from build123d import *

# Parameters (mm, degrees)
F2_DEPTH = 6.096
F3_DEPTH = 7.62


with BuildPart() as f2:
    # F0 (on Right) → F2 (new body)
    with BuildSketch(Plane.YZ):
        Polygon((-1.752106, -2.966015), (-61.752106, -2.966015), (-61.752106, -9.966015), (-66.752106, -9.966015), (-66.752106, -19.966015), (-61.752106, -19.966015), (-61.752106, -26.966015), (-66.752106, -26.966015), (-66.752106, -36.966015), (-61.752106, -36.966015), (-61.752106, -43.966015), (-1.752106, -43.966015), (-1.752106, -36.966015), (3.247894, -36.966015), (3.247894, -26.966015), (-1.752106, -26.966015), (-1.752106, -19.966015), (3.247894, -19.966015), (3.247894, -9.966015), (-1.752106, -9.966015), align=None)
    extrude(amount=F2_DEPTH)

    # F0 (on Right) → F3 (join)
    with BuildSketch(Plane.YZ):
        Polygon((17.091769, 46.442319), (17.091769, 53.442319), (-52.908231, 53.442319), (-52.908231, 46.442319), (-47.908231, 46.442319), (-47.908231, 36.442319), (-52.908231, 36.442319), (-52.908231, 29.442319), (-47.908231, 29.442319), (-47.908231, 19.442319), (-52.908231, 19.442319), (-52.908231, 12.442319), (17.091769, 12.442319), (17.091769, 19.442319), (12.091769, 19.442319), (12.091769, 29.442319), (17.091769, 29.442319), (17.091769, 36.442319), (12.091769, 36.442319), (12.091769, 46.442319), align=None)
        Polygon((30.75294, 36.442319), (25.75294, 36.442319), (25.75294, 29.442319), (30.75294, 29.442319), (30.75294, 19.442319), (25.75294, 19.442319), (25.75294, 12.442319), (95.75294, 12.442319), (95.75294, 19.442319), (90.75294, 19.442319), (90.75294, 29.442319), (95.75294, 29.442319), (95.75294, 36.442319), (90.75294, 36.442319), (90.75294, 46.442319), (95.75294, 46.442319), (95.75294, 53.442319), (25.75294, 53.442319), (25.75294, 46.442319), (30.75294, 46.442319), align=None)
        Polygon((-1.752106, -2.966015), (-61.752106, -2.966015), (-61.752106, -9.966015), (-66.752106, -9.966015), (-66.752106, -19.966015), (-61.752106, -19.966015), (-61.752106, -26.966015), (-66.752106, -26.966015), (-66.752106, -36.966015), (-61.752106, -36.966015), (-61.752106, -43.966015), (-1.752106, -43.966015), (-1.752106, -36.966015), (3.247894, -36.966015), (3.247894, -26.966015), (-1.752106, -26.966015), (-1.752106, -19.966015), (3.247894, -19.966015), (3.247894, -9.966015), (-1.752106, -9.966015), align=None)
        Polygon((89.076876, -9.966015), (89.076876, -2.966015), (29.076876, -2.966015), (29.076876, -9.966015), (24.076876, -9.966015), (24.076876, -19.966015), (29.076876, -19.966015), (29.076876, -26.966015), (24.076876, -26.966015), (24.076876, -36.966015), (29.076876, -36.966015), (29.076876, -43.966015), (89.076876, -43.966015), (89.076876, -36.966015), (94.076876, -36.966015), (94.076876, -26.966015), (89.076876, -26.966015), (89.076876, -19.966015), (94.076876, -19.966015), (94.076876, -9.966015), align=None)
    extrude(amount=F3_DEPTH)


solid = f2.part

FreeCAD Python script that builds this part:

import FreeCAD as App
import Part
import Sketcher
from FreeCAD import Vector
Q = App.Units.Quantity


def add_polygon(sketch, points):
    """Adds a closed chain of lines whose ends are joined by coincident constraints."""
    first, n = sketch.GeometryCount, len(points)
    for a, b in zip(points, points[1:] + points[:1]):
        sketch.addGeometry(Part.LineSegment(App.Vector(*a, 0), App.Vector(*b, 0)), False)
    for i in range(n):
        sketch.addConstraint(Sketcher.Constraint("Coincident", first + i, 2, first + (i + 1) % n, 1))

doc = App.newDocument("Part")
body = doc.addObject("PartDesign::Body", "Body")
body.AllowCompound = True

sketch1 = body.newObject("Sketcher::SketchObject", "Sketch")
sketch1.AttachmentSupport = (doc.getObject("YZ_Plane"), [""])
sketch1.MapMode = "FlatFace"
add_polygon(sketch1, [(-2, -3), (-62, -3), (-62, -10), (-67, -10), (-67, -20), (-62, -20), (-62, -27), (-67, -27), (-67, -37), (-62, -37), (-62, -44), (-2, -44), (-2, -37), (3, -37), (3, -27), (-2, -27), (-2, -20), (3, -20), (3, -10), (-2, -10)])
sketch1.addConstraint([
    Sketcher.Constraint("Horizontal", 0),
    Sketcher.Constraint("Vertical", 1),
    Sketcher.Constraint("Horizontal", 2),
    Sketcher.Constraint("Vertical", 3),
    Sketcher.Constraint("Horizontal", 4),
    Sketcher.Constraint("Vertical", 5),
    Sketcher.Constraint("Horizontal", 6),
    Sketcher.Constraint("Vertical", 7),
    Sketcher.Constraint("Horizontal", 8),
    Sketcher.Constraint("Vertical", 9),
    Sketcher.Constraint("Horizontal", 10),
    Sketcher.Constraint("Vertical", 11),
    Sketcher.Constraint("Horizontal", 12),
    Sketcher.Constraint("Vertical", 13),
    Sketcher.Constraint("Horizontal", 14),
    Sketcher.Constraint("Vertical", 15),
    Sketcher.Constraint("Horizontal", 16),
    Sketcher.Constraint("Vertical", 17),
    Sketcher.Constraint("Horizontal", 18),
    Sketcher.Constraint("Vertical", 19),
    Sketcher.Constraint("Horizontal", 8, 2, 11, 2),
    Sketcher.Constraint("Horizontal", 6, 2, 13, 2),
    Sketcher.Constraint("Horizontal", 4, 2, 15, 2),
    Sketcher.Constraint("Horizontal", 2, 2, 17, 2),
    Sketcher.Constraint("Vertical", 1, 2, 4, 2),
    Sketcher.Constraint("Vertical", 3, 2, 6, 2),
    Sketcher.Constraint("Vertical", 5, 2, 8, 2),
    Sketcher.Constraint("Vertical", 11, 2, 14, 2),
    Sketcher.Constraint("Vertical", 13, 2, 16, 2),
    Sketcher.Constraint("Vertical", 15, 2, 18, 2),
    Sketcher.Constraint("Equal", 8, 12),
    Sketcher.Constraint("Equal", 1, 5),
    Sketcher.Constraint("Equal", 3, 7),
    Sketcher.Constraint("Equal", 5, 9),
    Sketcher.Constraint("DistanceX", 0, 2, 0, 1, Q("60 mm")),
    Sketcher.Constraint("DistanceX", 2, 2, 2, 1, Q("5 mm")),
    Sketcher.Constraint("DistanceY", 1, 2, 1, 1, Q("7 mm")),
    Sketcher.Constraint("DistanceY", 3, 2, 3, 1, Q("10 mm")),
    Sketcher.Constraint("DistanceX", 0, 2, -1, 1, Q("61.752106 mm")),
    Sketcher.Constraint("DistanceY", 0, 2, -1, 1, Q("2.966015 mm")),
])
pad1 = body.newObject("PartDesign::Pad", "Pad")
pad1.Profile = sketch1
pad1.Length = 6.096

sketch2 = body.newObject("Sketcher::SketchObject", "Sketch001")
sketch2.AttachmentSupport = (doc.getObject("YZ_Plane"), [""])
sketch2.MapMode = "FlatFace"
add_polygon(sketch2, [(17, 46), (17, 53), (-53, 53), (-53, 46), (-48, 46), (-48, 36), (-53, 36), (-53, 29), (-48, 29), (-48, 19), (-53, 19), (-53, 12), (17, 12), (17, 19), (12, 19), (12, 29), (17, 29), (17, 36), (12, 36), (12, 46)])
add_polygon(sketch2, [(31, 36), (26, 36), (26, 29), (31, 29), (31, 19), (26, 19), (26, 12), (96, 12), (96, 19), (91, 19), (91, 29), (96, 29), (96, 36), (91, 36), (91, 46), (96, 46), (96, 53), (26, 53), (26, 46), (31, 46)])
add_polygon(sketch2, [(-2, -3), (-62, -3), (-62, -10), (-67, -10), (-67, -20), (-62, -20), (-62, -27), (-67, -27), (-67, -37), (-62, -37), (-62, -44), (-2, -44), (-2, -37), (3, -37), (3, -27), (-2, -27), (-2, -20), (3, -20), (3, -10), (-2, -10)])
add_polygon(sketch2, [(89, -10), (89, -3), (29, -3), (29, -10), (24, -10), (24, -20), (29, -20), (29, -27), (24, -27), (24, -37), (29, -37), (29, -44), (89, -44), (89, -37), (94, -37), (94, -27), (89, -27), (89, -20), (94, -20), (94, -10)])
sketch2.addConstraint([
    Sketcher.Constraint("Vertical", 0),
    Sketcher.Constraint("Horizontal", 1),
    Sketcher.Constraint("Vertical", 2),
    Sketcher.Constraint("Horizontal", 3),
    Sketcher.Constraint("Vertical", 4),
    Sketcher.Constraint("Horizontal", 5),
    Sketcher.Constraint("Vertical", 6),
    Sketcher.Constraint("Horizontal", 7),
    Sketcher.Constraint("Vertical", 8),
    Sketcher.Constraint("Horizontal", 9),
    Sketcher.Constraint("Vertical", 10),
    Sketcher.Constraint("Horizontal", 11),
    Sketcher.Constraint("Vertical", 12),
    Sketcher.Constraint("Horizontal", 13),
    Sketcher.Constraint("Vertical", 14),
    Sketcher.Constraint("Horizontal", 15),
    Sketcher.Constraint("Vertical", 16),
    Sketcher.Constraint("Horizontal", 17),
    Sketcher.Constraint("Vertical", 18),
    Sketcher.Constraint("Horizontal", 19),
    Sketcher.Constraint("Horizontal", 20),
    Sketcher.Constraint("Vertical", 21),
    Sketcher.Constraint("Horizontal", 22),
    Sketcher.Constraint("Vertical", 23),
    Sketcher.Constraint("Horizontal", 24),
    Sketcher.Constraint("Vertical", 25),
    Sketcher.Constraint("Horizontal", 26),
    Sketcher.Constraint("Vertical", 27),
    Sketcher.Constraint("Horizontal", 28),
    Sketcher.Constraint("Vertical", 29),
    Sketcher.Constraint("Horizontal", 30),
    Sketcher.Constraint("Vertical", 31),
    Sketcher.Constraint("Horizontal", 32),
    Sketcher.Constraint("Vertical", 33),
    Sketcher.Constraint("Horizontal", 34),
    Sketcher.Constraint("Vertical", 35),
    Sketcher.Constraint("Horizontal", 36),
    Sketcher.Constraint("Vertical", 37),
    Sketcher.Constraint("Horizontal", 38),
    Sketcher.Constraint("Vertical", 39),
    Sketcher.Constraint("Horizontal", 40),
    Sketcher.Constraint("Vertical", 41),
    Sketcher.Constraint("Horizontal", 42),
    Sketcher.Constraint("Vertical", 43),
    Sketcher.Constraint("Horizontal", 44),
    Sketcher.Constraint("Vertical", 45),
    Sketcher.Constraint("Horizontal", 46),
    Sketcher.Constraint("Vertical", 47),
    Sketcher.Constraint("Horizontal", 48),
    Sketcher.Constraint("Vertical", 49),
    Sketcher.Constraint("Horizontal", 50),
    Sketcher.Constraint("Vertical", 51),
    Sketcher.Constraint("Horizontal", 52),
    Sketcher.Constraint("Vertical", 53),
    Sketcher.Constraint("Horizontal", 54),
    Sketcher.Constraint("Vertical", 55),
    Sketcher.Constraint("Horizontal", 56),
    Sketcher.Constraint("Vertical", 57),
    Sketcher.Constraint("Horizontal", 58),
    Sketcher.Constraint("Vertical", 59),
    Sketcher.Constraint("Vertical", 60),
    Sketcher.Constraint("Horizontal", 61),
    Sketcher.Constraint("Vertical", 62),
    Sketcher.Constraint("Horizontal", 63),
    Sketcher.Constraint("Vertical", 64),
    Sketcher.Constraint("Horizontal", 65),
    Sketcher.Constraint("Vertical", 66),
    Sketcher.Constraint("Horizontal", 67),
    Sketcher.Constraint("Vertical", 68),
    Sketcher.Constraint("Horizontal", 69),
    Sketcher.Constraint("Vertical", 70),
    Sketcher.Constraint("Horizontal", 71),
    Sketcher.Constraint("Vertical", 72),
    Sketcher.Constraint("Horizontal", 73),
    Sketcher.Constraint("Vertical", 74),
    Sketcher.Constraint("Horizontal", 75),
    Sketcher.Constraint("Vertical", 76),
    Sketcher.Constraint("Horizontal", 77),
    Sketcher.Constraint("Vertical", 78),
    Sketcher.Constraint("Horizontal", 79),
    Sketcher.Constraint("Horizontal", 9, 2, 12, 2),
    Sketcher.Constraint("Horizontal", 7, 2, 14, 2),
    Sketcher.Constraint("Horizontal", 5, 2, 16, 2),
    Sketcher.Constraint("Horizontal", 3, 2, 18, 2),
    Sketcher.Constraint("Horizontal", 17, 2, 20, 2),
    Sketcher.Constraint("Horizontal", 15, 2, 21, 2),
    Sketcher.Constraint("Horizontal", 13, 2, 23, 2),
    Sketcher.Constraint("Horizontal", 11, 2, 25, 2),
    Sketcher.Constraint("Horizontal", 24, 2, 27, 2),
    Sketcher.Constraint("Horizontal", 22, 2, 29, 2),
    Sketcher.Constraint("Horizontal", 20, 2, 31, 2),
    Sketcher.Constraint("Horizontal", 19, 2, 33, 2),
    Sketcher.Constraint("Horizontal", 1, 2, 35, 2),
    Sketcher.Constraint("Horizontal", 34, 2, 37, 2),
    Sketcher.Constraint("Horizontal", 48, 2, 51, 2),
    Sketcher.Constraint("Horizontal", 46, 2, 53, 2),
    Sketcher.Constraint("Horizontal", 44, 2, 55, 2),
    Sketcher.Constraint("Horizontal", 42, 2, 57, 2),
    Sketcher.Constraint("Horizontal", 59, 2, 60, 2),
    Sketcher.Constraint("Horizontal", 58, 2, 62, 2),
    Sketcher.Constraint("Horizontal", 56, 2, 64, 2),
    Sketcher.Constraint("Horizontal", 54, 2, 66, 2),
    Sketcher.Constraint("Horizontal", 52, 2, 68, 2),
    Sketcher.Constraint("Horizontal", 50, 2, 70, 2),
    Sketcher.Constraint("Horizontal", 69, 2, 72, 2),
    Sketcher.Constraint("Horizontal", 67, 2, 74, 2),
    Sketcher.Constraint("Horizontal", 65, 2, 76, 2),
    Sketcher.Constraint("Horizontal", 63, 2, 78, 2),
    Sketcher.Constraint("Vertical", 2, 2, 5, 2),
    Sketcher.Constraint("Vertical", 4, 2, 7, 2),
    Sketcher.Constraint("Vertical", 6, 2, 9, 2),
    Sketcher.Constraint("Vertical", 0, 2, 11, 2),
    Sketcher.Constraint("Vertical", 12, 2, 15, 2),
    Sketcher.Constraint("Vertical", 14, 2, 17, 2),
    Sketcher.Constraint("Vertical", 21, 2, 24, 2),
    Sketcher.Constraint("Vertical", 27, 2, 30, 2),
    Sketcher.Constraint("Vertical", 29, 2, 32, 2),
    Sketcher.Constraint("Vertical", 31, 2, 34, 2),
    Sketcher.Constraint("Vertical", 25, 2, 36, 2),
    Sketcher.Constraint("Vertical", 23, 2, 38, 2),
    Sketcher.Constraint("Vertical", 41, 2, 44, 2),
    Sketcher.Constraint("Vertical", 43, 2, 46, 2),
    Sketcher.Constraint("Vertical", 45, 2, 48, 2),
    Sketcher.Constraint("Vertical", 51, 2, 54, 2),
    Sketcher.Constraint("Vertical", 53, 2, 56, 2),
    Sketcher.Constraint("Vertical", 55, 2, 58, 2),
    Sketcher.Constraint("Vertical", 62, 2, 65, 2),
    Sketcher.Constraint("Vertical", 64, 2, 67, 2),
    Sketcher.Constraint("Vertical", 66, 2, 69, 2),
    Sketcher.Constraint("Vertical", 60, 2, 71, 2),
    Sketcher.Constraint("Vertical", 72, 2, 75, 2),
    Sketcher.Constraint("Vertical", 74, 2, 77, 2),
    Sketcher.Constraint("Equal", 9, 13),
    Sketcher.Constraint("Equal", 19, 20),
    Sketcher.Constraint("Equal", 11, 26),
    Sketcher.Constraint("Equal", 24, 28),
    Sketcher.Constraint("Equal", 38, 42),
    Sketcher.Constraint("Equal", 48, 52),
    Sketcher.Constraint("Equal", 50, 61),
    Sketcher.Constraint("Equal", 58, 63),
    Sketcher.Constraint("Equal", 69, 73),
    Sketcher.Constraint("Equal", 2, 6),
    Sketcher.Constraint("Equal", 4, 8),
    Sketcher.Constraint("Equal", 6, 10),
    Sketcher.Constraint("Equal", 37, 41),
    Sketcher.Constraint("Equal", 39, 43),
    Sketcher.Constraint("Equal", 41, 45),
    Sketcher.Constraint("Equal", 43, 47),
    Sketcher.Constraint("Equal", 45, 49),
    Sketcher.Constraint("DistanceX", 1, 2, 1, 1, Q("70 mm")),
    Sketcher.Constraint("DistanceX", 3, 1, 3, 2, Q("5 mm")),
    Sketcher.Constraint("DistanceX", 40, 2, 40, 1, Q("60 mm")),
    Sketcher.Constraint("DistanceY", 0, 1, 0, 2, Q("7 mm")),
    Sketcher.Constraint("DistanceY", 4, 2, 4, 1, Q("10 mm")),
    Sketcher.Constraint("DistanceX", -1, 1, 0, 2, Q("17.091769 mm")),
    Sketcher.Constraint("DistanceY", -1, 1, 0, 2, Q("53.442319 mm")),
    Sketcher.Constraint("DistanceX", -1, 1, 20, 2, Q("25.75294 mm")),
    Sketcher.Constraint("DistanceX", 40, 2, -1, 1, Q("61.752106 mm")),
    Sketcher.Constraint("DistanceY", 40, 2, -1, 1, Q("2.966015 mm")),
    Sketcher.Constraint("DistanceX", -1, 1, 60, 2, Q("89.076876 mm")),
])
pad2 = body.newObject("PartDesign::Pad", "Pad001")
pad2.Profile = sketch2
pad2.Length = 7.62

doc.recompute()
